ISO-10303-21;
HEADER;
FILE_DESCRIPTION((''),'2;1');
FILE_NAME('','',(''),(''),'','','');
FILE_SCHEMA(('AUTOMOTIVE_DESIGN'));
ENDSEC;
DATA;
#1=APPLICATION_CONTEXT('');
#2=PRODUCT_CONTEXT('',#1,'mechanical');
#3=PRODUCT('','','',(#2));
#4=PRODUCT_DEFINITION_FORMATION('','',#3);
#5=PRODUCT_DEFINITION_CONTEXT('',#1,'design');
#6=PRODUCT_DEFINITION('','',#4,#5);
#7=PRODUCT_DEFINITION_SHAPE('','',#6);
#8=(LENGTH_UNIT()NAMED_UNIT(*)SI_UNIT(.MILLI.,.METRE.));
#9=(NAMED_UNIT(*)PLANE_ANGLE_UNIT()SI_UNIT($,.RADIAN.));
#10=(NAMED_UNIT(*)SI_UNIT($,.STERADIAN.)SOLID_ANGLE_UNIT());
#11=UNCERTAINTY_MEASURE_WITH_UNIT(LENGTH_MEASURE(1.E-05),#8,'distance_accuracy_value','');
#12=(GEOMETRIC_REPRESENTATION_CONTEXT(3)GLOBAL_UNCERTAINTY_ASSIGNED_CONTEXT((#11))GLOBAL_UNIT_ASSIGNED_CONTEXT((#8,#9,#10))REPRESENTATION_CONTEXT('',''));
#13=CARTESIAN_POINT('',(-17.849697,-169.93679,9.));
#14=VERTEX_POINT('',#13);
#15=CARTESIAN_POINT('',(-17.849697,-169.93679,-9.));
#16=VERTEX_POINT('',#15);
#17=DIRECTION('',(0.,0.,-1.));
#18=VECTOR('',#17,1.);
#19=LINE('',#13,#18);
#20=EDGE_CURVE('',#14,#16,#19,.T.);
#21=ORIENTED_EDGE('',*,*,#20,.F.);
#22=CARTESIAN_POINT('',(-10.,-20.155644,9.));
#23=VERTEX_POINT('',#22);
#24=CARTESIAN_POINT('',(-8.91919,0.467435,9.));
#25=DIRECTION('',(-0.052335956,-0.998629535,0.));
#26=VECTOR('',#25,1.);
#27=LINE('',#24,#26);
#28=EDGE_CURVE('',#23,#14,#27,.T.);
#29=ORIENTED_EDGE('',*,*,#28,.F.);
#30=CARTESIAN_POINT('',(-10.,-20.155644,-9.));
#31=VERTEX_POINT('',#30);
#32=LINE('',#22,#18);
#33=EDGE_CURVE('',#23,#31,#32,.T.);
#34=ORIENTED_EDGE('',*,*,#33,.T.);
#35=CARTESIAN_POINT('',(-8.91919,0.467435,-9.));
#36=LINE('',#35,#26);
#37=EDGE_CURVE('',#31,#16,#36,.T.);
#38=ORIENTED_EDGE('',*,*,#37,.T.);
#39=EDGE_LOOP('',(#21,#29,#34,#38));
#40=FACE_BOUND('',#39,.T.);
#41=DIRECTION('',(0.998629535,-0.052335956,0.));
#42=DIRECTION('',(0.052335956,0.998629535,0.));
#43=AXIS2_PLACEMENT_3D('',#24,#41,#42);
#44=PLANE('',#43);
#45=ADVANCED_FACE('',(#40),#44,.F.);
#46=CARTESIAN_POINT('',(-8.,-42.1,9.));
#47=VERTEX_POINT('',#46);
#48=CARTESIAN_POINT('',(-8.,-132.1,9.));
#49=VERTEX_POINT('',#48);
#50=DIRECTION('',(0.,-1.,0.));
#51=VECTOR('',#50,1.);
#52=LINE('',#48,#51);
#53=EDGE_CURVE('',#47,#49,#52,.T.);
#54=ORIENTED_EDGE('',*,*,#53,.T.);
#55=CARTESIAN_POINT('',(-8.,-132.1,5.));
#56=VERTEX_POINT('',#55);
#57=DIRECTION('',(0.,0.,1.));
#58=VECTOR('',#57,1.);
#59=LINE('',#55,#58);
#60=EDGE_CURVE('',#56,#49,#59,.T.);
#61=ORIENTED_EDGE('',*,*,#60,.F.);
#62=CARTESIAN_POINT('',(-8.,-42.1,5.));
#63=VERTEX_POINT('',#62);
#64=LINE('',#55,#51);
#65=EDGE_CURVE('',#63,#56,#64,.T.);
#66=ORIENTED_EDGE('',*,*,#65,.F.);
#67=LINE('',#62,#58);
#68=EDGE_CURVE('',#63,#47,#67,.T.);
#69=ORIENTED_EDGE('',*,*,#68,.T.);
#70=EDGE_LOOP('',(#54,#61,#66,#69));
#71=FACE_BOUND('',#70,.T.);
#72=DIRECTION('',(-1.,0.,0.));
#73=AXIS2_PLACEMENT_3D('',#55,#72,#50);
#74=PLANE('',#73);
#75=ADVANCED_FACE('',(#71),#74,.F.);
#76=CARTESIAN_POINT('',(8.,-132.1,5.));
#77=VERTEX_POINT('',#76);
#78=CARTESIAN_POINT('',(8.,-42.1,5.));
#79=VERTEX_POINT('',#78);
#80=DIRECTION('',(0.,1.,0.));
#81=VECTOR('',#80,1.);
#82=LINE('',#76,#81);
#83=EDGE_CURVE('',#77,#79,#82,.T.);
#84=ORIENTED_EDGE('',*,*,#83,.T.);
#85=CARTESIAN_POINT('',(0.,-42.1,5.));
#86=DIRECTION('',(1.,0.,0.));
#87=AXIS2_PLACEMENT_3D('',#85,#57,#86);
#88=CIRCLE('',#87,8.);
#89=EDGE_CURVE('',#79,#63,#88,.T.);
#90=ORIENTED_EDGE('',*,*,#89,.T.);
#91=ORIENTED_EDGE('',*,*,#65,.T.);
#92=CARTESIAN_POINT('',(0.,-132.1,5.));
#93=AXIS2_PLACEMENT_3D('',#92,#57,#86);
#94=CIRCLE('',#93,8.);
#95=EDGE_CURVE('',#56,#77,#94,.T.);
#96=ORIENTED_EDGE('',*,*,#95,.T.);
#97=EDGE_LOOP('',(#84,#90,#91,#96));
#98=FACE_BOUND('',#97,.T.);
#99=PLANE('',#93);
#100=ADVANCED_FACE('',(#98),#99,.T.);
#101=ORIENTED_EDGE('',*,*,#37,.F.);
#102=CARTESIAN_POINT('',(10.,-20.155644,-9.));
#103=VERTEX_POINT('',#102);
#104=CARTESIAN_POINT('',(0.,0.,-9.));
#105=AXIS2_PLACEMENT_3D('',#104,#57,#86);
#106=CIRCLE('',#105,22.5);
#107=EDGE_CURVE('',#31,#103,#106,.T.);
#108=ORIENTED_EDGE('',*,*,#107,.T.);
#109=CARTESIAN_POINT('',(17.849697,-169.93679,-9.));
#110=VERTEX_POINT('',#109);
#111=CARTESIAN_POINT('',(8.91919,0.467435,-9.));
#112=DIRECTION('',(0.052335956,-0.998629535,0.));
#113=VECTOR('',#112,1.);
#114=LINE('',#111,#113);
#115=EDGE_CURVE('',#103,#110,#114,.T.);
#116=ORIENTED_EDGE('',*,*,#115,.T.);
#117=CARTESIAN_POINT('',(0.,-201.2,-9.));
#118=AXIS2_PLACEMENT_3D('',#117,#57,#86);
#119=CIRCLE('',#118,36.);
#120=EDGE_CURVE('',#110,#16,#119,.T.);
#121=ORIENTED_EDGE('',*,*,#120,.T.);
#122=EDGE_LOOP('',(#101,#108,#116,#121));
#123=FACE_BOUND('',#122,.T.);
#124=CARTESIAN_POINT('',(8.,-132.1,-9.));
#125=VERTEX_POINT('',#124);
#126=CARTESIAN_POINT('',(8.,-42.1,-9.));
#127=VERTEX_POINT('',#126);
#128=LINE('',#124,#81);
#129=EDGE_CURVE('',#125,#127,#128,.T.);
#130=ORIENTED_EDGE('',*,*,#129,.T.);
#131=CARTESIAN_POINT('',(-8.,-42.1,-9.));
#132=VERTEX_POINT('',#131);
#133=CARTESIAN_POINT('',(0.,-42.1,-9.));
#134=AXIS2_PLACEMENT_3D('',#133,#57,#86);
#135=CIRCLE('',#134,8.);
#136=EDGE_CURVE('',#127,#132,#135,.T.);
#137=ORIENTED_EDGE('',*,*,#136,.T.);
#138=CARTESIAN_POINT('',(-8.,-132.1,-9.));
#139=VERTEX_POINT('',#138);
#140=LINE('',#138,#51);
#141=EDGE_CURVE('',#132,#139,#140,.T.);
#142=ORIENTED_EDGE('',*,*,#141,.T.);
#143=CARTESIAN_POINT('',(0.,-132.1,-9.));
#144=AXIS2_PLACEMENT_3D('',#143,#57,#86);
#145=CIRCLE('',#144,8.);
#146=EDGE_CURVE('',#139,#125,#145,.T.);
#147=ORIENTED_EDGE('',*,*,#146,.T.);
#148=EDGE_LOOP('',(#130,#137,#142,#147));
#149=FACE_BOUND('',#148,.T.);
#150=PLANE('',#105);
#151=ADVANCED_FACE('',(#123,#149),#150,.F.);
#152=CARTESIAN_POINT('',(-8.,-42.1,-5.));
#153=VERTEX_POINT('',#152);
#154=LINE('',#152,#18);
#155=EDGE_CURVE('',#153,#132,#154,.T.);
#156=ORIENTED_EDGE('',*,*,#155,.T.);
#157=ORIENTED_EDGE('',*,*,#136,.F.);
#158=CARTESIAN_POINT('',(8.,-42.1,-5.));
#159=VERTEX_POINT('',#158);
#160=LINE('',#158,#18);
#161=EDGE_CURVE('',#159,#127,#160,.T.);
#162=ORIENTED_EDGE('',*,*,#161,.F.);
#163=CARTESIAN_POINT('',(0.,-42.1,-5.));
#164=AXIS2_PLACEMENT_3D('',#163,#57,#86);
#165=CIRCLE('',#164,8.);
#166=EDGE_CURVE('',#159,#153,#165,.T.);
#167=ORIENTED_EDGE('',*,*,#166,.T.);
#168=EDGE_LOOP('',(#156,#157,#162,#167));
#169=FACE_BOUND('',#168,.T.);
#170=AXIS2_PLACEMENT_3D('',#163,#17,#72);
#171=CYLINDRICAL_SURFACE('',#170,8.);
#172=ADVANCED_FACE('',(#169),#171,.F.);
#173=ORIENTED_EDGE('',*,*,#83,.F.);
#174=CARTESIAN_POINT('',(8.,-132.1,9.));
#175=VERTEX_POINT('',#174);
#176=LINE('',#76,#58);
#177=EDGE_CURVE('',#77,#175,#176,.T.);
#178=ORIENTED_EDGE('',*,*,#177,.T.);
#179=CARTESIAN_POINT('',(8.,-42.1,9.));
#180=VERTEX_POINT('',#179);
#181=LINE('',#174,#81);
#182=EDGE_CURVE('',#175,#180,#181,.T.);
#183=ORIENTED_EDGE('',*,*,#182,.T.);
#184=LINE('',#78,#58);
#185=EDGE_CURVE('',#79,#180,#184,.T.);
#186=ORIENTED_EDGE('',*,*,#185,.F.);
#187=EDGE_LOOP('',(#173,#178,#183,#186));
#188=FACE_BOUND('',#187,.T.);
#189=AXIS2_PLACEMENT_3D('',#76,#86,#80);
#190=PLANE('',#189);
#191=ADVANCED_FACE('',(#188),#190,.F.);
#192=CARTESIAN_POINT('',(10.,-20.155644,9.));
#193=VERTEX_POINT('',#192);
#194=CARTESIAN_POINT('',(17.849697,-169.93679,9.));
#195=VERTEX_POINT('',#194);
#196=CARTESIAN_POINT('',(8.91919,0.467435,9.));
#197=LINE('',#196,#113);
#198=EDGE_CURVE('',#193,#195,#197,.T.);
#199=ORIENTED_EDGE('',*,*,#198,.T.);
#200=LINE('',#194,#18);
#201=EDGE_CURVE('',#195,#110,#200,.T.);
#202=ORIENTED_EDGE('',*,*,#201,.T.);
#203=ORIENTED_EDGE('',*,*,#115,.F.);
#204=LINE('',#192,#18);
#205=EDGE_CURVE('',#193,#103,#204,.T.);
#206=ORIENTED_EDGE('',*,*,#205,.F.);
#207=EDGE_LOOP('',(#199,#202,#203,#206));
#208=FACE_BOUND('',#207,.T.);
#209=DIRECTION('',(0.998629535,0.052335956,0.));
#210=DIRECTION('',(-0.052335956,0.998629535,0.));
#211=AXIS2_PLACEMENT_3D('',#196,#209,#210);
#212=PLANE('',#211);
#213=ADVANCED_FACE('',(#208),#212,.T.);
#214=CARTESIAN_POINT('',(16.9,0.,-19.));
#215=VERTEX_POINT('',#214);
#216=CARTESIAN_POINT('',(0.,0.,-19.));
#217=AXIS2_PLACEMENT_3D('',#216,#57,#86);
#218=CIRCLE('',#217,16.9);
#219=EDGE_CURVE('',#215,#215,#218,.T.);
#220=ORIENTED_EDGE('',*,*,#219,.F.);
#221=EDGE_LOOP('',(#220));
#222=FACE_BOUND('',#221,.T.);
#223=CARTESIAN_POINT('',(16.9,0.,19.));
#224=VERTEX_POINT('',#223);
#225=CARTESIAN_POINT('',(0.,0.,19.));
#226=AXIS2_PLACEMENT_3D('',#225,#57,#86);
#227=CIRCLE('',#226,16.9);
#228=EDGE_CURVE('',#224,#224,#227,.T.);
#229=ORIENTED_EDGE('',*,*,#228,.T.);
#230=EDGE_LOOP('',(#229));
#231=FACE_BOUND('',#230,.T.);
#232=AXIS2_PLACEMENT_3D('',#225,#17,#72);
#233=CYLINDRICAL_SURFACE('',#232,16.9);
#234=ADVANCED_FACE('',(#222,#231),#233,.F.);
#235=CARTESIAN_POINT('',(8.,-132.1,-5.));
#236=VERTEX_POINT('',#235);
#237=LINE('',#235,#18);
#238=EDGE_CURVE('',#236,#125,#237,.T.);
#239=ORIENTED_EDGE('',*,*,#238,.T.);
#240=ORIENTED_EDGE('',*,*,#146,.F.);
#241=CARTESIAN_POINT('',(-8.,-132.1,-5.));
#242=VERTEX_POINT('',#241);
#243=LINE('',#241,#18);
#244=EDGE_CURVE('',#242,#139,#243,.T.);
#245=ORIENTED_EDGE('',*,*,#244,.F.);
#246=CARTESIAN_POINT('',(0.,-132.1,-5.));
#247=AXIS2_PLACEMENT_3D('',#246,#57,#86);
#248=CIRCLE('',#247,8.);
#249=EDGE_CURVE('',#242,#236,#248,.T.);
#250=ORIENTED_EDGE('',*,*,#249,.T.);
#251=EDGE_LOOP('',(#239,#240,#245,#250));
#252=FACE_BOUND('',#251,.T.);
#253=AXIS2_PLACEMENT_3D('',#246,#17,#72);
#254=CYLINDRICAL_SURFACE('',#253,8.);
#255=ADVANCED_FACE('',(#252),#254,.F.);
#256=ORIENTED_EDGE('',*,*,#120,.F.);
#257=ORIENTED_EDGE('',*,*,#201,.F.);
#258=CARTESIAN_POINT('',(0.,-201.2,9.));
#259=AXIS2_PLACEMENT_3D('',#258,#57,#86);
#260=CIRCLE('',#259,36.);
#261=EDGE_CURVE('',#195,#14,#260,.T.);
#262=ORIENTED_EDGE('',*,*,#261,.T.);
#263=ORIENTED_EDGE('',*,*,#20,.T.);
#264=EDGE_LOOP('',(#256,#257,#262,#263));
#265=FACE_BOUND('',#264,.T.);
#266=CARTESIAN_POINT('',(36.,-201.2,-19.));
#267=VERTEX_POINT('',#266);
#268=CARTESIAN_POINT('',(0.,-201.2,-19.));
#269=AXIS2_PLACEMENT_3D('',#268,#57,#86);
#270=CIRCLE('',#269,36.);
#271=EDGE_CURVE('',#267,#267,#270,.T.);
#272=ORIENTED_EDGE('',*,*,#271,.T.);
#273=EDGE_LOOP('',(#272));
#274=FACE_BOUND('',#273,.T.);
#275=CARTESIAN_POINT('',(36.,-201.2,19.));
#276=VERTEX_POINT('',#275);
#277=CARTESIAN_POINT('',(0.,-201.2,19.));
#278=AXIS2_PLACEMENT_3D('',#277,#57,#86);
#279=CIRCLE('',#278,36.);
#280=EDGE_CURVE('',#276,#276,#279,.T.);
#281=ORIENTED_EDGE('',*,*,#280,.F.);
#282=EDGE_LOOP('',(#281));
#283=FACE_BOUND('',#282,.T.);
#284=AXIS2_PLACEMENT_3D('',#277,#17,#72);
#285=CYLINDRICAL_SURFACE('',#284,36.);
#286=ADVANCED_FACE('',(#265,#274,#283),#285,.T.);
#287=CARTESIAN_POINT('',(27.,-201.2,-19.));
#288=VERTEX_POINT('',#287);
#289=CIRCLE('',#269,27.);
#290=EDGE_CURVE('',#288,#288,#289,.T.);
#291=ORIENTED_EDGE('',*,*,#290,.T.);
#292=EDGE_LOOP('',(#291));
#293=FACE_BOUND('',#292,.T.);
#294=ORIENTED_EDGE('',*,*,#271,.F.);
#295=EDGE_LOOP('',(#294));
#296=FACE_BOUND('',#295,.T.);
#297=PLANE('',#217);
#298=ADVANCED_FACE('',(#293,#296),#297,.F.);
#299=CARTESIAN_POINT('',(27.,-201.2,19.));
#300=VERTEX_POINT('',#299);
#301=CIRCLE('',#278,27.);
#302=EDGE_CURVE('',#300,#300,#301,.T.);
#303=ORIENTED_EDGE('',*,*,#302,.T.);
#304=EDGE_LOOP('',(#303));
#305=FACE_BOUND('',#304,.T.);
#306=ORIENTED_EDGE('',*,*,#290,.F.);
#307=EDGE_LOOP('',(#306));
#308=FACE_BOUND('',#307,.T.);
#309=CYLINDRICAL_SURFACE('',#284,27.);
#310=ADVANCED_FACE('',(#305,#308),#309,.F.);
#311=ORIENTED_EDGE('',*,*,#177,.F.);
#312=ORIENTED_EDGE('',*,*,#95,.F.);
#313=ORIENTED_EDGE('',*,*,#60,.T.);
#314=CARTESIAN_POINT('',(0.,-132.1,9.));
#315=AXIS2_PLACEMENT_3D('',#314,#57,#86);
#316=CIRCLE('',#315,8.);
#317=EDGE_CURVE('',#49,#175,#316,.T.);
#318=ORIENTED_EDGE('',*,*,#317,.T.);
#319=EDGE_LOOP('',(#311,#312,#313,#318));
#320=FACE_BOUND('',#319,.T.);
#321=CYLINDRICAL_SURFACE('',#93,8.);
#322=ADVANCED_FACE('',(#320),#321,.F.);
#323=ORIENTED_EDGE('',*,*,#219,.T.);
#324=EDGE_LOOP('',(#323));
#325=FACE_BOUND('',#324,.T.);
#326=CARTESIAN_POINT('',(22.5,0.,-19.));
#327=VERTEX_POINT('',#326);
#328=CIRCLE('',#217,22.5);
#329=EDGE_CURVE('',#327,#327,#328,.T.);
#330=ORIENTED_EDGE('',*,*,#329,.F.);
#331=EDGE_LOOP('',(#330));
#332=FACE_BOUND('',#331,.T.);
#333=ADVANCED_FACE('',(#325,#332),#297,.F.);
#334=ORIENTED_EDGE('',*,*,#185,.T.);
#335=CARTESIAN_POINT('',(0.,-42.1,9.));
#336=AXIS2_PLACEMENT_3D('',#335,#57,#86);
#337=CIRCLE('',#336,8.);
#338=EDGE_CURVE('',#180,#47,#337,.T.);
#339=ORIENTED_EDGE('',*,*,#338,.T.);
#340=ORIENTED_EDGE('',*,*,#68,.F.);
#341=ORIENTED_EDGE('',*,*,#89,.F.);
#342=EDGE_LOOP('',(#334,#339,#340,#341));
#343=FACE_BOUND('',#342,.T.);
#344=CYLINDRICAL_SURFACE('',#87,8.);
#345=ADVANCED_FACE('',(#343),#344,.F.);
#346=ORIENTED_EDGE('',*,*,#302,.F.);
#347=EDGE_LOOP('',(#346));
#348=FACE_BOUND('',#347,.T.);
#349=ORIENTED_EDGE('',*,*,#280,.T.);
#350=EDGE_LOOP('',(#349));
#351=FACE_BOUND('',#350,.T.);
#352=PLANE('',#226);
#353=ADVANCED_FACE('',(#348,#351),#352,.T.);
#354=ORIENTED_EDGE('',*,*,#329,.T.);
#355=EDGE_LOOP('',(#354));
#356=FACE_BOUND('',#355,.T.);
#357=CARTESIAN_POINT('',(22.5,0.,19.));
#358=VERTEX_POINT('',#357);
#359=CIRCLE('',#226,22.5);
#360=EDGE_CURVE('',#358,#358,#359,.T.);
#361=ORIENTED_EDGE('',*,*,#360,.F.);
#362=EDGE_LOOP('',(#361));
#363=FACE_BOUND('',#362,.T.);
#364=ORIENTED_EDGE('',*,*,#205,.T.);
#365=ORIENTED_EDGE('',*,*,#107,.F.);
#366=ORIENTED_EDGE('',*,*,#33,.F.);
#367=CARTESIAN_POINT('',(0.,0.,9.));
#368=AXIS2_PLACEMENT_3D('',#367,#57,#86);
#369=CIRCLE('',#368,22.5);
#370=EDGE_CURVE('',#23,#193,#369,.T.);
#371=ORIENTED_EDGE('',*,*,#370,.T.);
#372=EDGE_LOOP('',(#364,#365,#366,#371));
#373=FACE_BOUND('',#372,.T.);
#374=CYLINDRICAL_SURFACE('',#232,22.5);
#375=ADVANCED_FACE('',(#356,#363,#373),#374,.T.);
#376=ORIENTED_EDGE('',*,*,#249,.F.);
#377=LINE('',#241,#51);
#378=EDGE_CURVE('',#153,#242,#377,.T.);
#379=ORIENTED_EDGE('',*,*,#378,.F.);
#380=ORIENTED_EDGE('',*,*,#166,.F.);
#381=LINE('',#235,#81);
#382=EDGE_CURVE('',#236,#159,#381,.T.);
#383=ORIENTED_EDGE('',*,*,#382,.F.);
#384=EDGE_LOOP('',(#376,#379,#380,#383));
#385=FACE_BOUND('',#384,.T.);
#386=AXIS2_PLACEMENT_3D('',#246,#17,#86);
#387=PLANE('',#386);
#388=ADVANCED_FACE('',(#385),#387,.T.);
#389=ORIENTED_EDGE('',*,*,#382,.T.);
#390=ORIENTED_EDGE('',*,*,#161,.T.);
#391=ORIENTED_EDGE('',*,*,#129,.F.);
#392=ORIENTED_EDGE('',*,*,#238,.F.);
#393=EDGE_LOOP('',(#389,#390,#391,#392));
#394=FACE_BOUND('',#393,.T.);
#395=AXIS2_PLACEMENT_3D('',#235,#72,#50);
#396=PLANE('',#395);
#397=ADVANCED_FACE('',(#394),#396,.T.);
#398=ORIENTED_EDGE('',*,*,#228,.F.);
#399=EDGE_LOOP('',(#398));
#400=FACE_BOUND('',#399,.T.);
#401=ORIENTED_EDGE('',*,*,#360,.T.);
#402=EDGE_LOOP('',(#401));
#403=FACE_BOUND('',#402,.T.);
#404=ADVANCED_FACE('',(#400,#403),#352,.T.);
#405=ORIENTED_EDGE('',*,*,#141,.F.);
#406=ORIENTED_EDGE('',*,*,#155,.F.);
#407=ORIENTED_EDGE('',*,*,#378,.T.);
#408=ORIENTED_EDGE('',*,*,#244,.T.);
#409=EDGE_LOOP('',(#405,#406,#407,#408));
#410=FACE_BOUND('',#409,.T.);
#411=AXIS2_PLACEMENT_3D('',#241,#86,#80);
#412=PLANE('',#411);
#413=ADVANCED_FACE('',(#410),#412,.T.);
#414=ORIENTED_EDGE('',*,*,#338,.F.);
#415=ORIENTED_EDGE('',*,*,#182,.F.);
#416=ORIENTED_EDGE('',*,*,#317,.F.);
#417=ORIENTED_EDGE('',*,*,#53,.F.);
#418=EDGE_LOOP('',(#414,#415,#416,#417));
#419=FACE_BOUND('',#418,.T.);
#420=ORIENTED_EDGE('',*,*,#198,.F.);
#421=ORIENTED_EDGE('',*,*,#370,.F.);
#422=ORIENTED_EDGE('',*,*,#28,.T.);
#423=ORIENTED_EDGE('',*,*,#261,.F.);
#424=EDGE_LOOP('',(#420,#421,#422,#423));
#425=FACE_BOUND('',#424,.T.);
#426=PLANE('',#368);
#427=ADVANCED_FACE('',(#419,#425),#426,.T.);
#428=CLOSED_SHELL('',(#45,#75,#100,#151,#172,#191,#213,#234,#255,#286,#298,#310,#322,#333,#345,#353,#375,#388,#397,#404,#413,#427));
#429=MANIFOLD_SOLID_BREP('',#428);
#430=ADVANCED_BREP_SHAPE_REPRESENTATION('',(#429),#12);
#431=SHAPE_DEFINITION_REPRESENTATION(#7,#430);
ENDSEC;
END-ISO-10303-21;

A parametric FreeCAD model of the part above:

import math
import FreeCAD as App
import Part
import Sketcher

V = App.Vector
Q = App.Units.Quantity

doc = App.newDocument("Part")
body = doc.addObject("PartDesign::Body", "Body")

# Sketch on XY plane
sketch1 = doc.addObject("Sketcher::SketchObject", "Sketch")
body.addObject(sketch1)
sketch1.AttachmentSupport = (doc.XY_Plane, [""])
sketch1.MapMode = "FlatFace"
sketch1.addGeometry([
    Part.Circle(V(0, 0, 0), V(0, 0, 1), 22),
    Part.Circle(V(0, 0, 0), V(0, 0, 1), 17),
], False)
sketch1.addConstraint([
    Sketcher.Constraint("Coincident", 0, 3, -1, 1),
    Sketcher.Constraint("Coincident", 1, 3, -1, 1),
    Sketcher.Constraint("Diameter", 0, 45.0),
    Sketcher.Constraint("Diameter", 1, 33.8),
])
pad1 = doc.addObject("PartDesign::Pad", "Pad")
body.addObject(pad1)
pad1.Profile = sketch1
pad1.Length = 38
pad1.Midplane = True
body2 = doc.addObject("PartDesign::Body", "Body001")

# Sketch on XY plane
sketch2 = doc.addObject("Sketcher::SketchObject", "Sketch001")
body2.addObject(sketch2)
sketch2.AttachmentSupport = (doc.getObject("XY_Plane001"), [""])
sketch2.MapMode = "FlatFace"
sketch2.addGeometry([
    Part.Circle(V(0, -201, 0), V(0, 0, 1), 36),
    Part.Circle(V(0, -201, 0), V(0, 0, 1), 27),
], False)
sketch2.addConstraint([
    Sketcher.Constraint("Coincident", 1, 3, 0, 3),
    Sketcher.Constraint("PointOnObject", 0, 3, -2),
    Sketcher.Constraint("Diameter", 0, 72.0),
    Sketcher.Constraint("Diameter", 1, 54.0),
    Sketcher.Constraint("DistanceY", 0, 3, -1, 1, 201.2),
])
pad2 = doc.addObject("PartDesign::Pad", "Pad001")
body2.addObject(pad2)
pad2.Profile = sketch2
pad2.Length = 38
pad2.Midplane = True
body.AllowCompound = True
doc.recompute()

boolean = doc.addObject("PartDesign::Boolean", "Boolean")
body.addObject(boolean)
boolean.Type = "Fuse"
boolean.addObjects([body2])

# Sketch on XY plane
sketch3 = doc.addObject("Sketcher::SketchObject", "Sketch002")
body.addObject(sketch3)
sketch3.AttachmentSupport = (doc.XY_Plane, [""])
sketch3.MapMode = "FlatFace"
sketch3.addGeometry([
    Part.ArcOfCircle(Part.Circle(V(0, 0, 0), V(0, 0, 1), 22), math.radians(-116), math.radians(-90)),  # 0
    Part.LineSegment(V(-10, -20, 0), V(-18, -170, 0)),  # 1
    Part.ArcOfCircle(Part.Circle(V(0, -201, 0), V(0, 0, 1), 36), math.radians(90), math.radians(120)),  # 2
    Part.ArcOfCircle(Part.Circle(V(0, -201, 0), V(0, 0, 1), 36), math.radians(60), math.radians(90)),  # 3
    Part.LineSegment(V(18, -170, 0), V(10, -20, 0)),  # 4
    Part.ArcOfCircle(Part.Circle(V(0, 0, 0), V(0, 0, 1), 22), math.radians(-90), math.radians(-64)),  # 5
], False)
sketch3.addConstraint([
    Sketcher.Constraint("Coincident", 0, 1, 1, 1),
    Sketcher.Constraint("Coincident", 1, 2, 2, 2),
    Sketcher.Constraint("Tangent", 2, 1, 3, 2),
    Sketcher.Constraint("Coincident", 3, 1, 4, 1),
    Sketcher.Constraint("Coincident", 4, 2, 5, 2),
    Sketcher.Constraint("Tangent", 5, 1, 0, 2),
    Sketcher.Constraint("Coincident", 0, 3, -1, 1),
    Sketcher.Constraint("Equal", 2, 3),
    Sketcher.Constraint("Equal", 0, 5),
    Sketcher.Constraint("Symmetric", 1, 2, 3, 1, -2),
    Sketcher.Constraint("PointOnObject", 2, 1, -2),
    Sketcher.Constraint("PointOnObject", 5, 1, -2),
    Sketcher.Constraint("Horizontal", 0, 1, 4, 2),
    Sketcher.Constraint("Radius", 2, 36.0),
    Sketcher.Constraint("Radius", 0, 22.5),
    Sketcher.Constraint("Angle", 1, Q("-93 deg")),
    Sketcher.Constraint("DistanceX", 0, 1, -1, 1, 10.0),
    Sketcher.Constraint("DistanceY", 2, 3, -1, 1, 201.2),
])
pad3 = doc.addObject("PartDesign::Pad", "Pad002")
body.addObject(pad3)
pad3.Profile = sketch3
pad3.Length = 18
pad3.Midplane = True

# Sketch on XY plane
sketch4 = doc.addObject("Sketcher::SketchObject", "Sketch003")
body.addObject(sketch4)
sketch4.AttachmentSupport = (doc.XY_Plane, [""])
sketch4.MapMode = "FlatFace"
sketch4.AttachmentOffset = App.Placement(V(0, 0, 9), App.Rotation())
sketch4.addGeometry([
    Part.LineSegment(V(-8, -42, 0), V(-8, -132, 0)),
    Part.ArcOfCircle(Part.Circle(V(0, -132, 0), V(0, 0, 1), 8), math.radians(180), math.radians(360)),
    Part.LineSegment(V(8, -132, 0), V(8, -42, 0)),
    Part.ArcOfCircle(Part.Circle(V(0, -42, 0), V(0, 0, 1), 8), math.radians(0), math.radians(180)),
], False)
sketch4.addConstraint([
    Sketcher.Constraint("Tangent", 0, 2, 1, 1),
    Sketcher.Constraint("Tangent", 1, 2, 2, 1),
    Sketcher.Constraint("Tangent", 2, 2, 3, 1),
    Sketcher.Constraint("Tangent", 3, 2, 0, 1),
    Sketcher.Constraint("Vertical", 0),
    Sketcher.Constraint("Vertical", 2),
    Sketcher.Constraint("PointOnObject", 1, 3, -2),
    Sketcher.Constraint("Radius", 1, 8.0),
    Sketcher.Constraint("DistanceY", 0, 2, 0, 1, 90.0),
    Sketcher.Constraint("DistanceY", 1, 3, -1, 1, 132.1),
])
pocket1 = doc.addObject("PartDesign::Pocket", "Pocket")
body.addObject(pocket1)
pocket1.Profile = sketch4
pocket1.Length = 4
doc.recompute()

mirrored = doc.addObject("PartDesign::Mirrored", "Mirrored")
body.addObject(mirrored)
mirrored.Originals = [pocket1]
mirrored.MirrorPlane = (doc.XY_Plane, [""])
body.Tip = mirrored

doc.recompute()
